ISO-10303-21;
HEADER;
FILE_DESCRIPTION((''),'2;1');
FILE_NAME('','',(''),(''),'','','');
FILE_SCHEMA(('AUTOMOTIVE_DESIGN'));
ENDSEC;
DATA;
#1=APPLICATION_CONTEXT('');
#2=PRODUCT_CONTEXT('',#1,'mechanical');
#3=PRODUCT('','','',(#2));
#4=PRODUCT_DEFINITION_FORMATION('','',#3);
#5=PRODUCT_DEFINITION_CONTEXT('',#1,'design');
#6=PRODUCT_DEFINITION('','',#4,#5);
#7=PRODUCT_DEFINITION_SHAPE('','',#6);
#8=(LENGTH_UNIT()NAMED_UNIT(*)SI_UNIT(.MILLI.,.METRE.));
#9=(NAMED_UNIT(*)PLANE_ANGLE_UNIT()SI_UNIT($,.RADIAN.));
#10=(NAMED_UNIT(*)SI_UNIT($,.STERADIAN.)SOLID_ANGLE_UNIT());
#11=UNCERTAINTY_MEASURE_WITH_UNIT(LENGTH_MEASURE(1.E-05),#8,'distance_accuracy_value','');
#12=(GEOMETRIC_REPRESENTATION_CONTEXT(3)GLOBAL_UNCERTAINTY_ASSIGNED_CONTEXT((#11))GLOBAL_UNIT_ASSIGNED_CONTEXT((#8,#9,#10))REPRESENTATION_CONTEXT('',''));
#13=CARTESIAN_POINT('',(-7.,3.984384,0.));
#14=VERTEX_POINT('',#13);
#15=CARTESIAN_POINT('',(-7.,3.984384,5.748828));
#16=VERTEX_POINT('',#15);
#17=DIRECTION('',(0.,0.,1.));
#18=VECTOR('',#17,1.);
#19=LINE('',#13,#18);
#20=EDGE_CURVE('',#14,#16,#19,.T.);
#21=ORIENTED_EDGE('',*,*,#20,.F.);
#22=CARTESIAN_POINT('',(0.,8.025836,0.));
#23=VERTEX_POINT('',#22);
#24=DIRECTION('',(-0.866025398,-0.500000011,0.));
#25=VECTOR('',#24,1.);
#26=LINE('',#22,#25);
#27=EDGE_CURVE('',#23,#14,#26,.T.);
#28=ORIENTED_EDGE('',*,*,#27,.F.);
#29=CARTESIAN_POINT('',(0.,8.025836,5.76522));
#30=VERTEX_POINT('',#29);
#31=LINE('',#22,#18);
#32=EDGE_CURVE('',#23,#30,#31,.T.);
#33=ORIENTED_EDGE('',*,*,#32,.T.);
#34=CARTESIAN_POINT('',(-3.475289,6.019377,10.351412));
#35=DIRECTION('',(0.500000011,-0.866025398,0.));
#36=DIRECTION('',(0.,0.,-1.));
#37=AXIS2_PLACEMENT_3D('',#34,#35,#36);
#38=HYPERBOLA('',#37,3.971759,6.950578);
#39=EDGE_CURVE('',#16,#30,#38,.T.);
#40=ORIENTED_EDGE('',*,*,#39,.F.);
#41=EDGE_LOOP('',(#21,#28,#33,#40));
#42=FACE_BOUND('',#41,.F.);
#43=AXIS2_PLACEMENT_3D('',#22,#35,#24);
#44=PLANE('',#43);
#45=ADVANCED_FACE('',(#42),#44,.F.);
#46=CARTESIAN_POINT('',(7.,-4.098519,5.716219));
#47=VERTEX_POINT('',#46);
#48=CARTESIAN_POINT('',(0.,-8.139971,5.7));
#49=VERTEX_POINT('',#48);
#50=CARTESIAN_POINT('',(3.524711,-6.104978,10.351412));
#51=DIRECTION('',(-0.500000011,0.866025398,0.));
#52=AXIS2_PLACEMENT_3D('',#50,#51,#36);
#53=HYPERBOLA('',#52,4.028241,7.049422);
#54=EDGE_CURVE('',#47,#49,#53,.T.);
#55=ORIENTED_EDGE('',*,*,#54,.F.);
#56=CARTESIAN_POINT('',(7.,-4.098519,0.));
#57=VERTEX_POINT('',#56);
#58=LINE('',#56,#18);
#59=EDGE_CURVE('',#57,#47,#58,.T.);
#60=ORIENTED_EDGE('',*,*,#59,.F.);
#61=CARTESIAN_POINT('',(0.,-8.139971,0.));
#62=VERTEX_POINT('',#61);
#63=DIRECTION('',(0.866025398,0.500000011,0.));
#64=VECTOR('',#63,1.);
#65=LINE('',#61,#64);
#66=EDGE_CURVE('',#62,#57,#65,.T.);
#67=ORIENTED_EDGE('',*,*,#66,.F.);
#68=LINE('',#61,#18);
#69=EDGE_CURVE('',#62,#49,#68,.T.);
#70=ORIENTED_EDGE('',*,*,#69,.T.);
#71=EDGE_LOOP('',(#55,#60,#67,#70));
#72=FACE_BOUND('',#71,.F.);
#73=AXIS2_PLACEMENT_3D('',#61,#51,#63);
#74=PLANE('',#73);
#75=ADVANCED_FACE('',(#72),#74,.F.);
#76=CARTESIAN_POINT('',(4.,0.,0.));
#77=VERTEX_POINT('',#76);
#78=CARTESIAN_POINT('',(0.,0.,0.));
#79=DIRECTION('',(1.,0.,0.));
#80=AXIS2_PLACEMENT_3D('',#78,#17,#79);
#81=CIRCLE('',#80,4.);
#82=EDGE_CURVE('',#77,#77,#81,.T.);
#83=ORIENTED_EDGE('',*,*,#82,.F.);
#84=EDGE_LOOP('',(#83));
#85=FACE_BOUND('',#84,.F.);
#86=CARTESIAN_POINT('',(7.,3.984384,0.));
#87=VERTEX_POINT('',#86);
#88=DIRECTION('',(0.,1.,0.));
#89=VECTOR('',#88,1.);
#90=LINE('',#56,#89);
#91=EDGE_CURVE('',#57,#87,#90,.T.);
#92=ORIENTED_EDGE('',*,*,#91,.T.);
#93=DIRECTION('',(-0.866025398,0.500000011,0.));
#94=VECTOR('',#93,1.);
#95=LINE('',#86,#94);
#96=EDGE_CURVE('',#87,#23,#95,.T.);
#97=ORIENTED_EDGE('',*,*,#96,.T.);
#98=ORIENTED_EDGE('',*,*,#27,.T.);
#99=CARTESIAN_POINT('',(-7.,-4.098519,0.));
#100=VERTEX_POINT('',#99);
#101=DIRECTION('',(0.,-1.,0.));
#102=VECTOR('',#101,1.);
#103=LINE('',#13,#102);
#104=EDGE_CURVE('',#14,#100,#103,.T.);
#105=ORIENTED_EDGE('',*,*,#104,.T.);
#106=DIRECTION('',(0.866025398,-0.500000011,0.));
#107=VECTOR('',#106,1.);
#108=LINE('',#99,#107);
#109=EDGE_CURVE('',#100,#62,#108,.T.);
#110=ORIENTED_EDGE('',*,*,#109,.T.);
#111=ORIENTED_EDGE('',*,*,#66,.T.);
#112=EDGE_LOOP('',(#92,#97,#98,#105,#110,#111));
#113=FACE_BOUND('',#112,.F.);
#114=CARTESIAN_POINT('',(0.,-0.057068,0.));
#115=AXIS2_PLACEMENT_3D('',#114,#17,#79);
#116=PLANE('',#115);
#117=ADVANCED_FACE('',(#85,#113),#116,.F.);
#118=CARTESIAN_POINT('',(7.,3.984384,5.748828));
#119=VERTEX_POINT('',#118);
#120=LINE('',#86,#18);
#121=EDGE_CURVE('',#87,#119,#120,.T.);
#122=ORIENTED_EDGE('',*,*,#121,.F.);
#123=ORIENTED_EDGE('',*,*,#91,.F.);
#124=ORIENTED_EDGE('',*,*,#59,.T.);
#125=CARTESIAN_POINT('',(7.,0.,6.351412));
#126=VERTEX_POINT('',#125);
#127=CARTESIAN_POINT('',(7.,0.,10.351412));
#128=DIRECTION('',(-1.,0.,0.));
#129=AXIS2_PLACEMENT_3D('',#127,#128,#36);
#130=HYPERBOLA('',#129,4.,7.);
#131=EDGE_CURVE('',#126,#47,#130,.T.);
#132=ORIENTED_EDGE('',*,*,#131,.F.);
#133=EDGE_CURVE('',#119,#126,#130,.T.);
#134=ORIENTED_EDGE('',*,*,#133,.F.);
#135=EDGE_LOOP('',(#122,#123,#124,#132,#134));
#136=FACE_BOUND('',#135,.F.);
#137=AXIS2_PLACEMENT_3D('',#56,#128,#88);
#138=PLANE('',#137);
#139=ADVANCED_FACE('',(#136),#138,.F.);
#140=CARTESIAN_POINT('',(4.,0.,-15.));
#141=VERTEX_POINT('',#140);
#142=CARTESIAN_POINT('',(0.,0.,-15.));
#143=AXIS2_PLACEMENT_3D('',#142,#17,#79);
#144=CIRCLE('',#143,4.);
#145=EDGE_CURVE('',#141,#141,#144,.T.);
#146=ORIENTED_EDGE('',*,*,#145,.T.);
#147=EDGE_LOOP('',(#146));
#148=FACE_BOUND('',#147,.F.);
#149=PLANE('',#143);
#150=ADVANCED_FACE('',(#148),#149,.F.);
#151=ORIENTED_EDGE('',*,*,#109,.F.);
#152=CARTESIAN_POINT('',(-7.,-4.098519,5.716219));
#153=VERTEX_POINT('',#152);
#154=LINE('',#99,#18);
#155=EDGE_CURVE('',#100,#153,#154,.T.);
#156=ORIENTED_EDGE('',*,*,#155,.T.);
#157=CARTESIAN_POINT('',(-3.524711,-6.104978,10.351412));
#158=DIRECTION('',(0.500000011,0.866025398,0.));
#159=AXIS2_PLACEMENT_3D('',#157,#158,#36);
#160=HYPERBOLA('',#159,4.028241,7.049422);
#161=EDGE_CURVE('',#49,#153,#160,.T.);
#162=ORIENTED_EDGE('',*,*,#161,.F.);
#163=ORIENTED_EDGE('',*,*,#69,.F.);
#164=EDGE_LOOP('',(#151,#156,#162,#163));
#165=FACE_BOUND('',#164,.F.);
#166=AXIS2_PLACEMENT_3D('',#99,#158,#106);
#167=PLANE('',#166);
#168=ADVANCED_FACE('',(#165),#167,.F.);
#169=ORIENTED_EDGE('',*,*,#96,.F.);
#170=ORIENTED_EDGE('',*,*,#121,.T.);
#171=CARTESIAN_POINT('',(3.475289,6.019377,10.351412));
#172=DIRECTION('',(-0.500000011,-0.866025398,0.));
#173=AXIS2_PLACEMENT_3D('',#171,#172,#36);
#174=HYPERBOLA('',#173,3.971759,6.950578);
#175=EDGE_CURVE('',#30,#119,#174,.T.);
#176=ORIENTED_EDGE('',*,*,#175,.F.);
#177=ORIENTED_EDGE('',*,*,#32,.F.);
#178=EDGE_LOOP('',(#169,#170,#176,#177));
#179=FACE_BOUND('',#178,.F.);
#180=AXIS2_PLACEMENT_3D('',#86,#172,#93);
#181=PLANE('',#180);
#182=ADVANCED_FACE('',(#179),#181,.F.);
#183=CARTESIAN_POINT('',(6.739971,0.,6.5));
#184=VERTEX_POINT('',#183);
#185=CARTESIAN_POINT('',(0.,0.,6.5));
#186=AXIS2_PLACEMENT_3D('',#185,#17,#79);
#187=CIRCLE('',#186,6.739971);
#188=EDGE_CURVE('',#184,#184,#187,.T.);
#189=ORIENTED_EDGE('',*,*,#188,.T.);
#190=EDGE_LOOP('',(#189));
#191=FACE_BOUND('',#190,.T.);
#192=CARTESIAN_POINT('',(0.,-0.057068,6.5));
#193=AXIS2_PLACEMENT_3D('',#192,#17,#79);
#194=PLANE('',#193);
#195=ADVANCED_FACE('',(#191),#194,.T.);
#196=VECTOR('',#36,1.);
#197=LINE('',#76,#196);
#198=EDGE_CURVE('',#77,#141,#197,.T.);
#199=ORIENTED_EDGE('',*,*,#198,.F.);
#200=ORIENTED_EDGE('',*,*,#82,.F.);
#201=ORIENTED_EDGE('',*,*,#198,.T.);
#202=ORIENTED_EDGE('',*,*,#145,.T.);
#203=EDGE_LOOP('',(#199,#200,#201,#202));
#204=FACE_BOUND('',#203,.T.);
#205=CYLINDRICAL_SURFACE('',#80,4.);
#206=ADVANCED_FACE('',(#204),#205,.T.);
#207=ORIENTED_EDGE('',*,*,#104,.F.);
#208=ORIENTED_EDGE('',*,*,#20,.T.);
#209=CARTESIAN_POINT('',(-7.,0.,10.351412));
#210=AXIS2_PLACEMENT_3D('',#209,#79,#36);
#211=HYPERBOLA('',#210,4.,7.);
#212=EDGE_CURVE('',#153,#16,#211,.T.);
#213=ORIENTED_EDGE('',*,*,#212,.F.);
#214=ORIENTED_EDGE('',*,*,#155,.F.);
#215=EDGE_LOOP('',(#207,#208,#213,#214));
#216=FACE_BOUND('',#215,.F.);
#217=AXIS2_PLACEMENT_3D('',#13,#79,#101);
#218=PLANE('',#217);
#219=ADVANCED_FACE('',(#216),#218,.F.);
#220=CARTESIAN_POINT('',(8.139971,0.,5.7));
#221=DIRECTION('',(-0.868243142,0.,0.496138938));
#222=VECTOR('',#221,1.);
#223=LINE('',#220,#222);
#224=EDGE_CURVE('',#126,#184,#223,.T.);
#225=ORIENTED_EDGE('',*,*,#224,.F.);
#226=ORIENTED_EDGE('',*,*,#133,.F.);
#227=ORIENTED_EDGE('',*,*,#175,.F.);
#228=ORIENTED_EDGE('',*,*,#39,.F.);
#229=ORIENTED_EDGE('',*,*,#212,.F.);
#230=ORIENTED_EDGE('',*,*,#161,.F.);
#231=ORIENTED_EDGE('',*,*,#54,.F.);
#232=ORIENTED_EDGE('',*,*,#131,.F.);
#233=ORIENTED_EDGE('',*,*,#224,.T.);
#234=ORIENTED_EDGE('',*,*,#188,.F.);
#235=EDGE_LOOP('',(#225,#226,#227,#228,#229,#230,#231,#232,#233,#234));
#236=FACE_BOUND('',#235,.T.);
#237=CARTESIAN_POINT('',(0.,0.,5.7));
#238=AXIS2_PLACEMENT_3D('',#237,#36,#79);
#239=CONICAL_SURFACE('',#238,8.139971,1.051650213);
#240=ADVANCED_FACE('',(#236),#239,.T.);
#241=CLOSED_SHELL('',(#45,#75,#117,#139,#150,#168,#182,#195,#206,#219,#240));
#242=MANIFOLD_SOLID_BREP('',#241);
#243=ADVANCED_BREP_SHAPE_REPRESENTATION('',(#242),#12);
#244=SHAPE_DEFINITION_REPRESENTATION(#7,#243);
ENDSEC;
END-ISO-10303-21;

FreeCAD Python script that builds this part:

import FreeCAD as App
import Part
import Sketcher
from FreeCAD import Vector
Q = App.Units.Quantity


def add_polygon(sketch, points):
    """Adds a closed chain of lines whose ends are joined by coincident constraints."""
    first, n = sketch.GeometryCount, len(points)
    for a, b in zip(points, points[1:] + points[:1]):
        sketch.addGeometry(Part.LineSegment(App.Vector(*a, 0), App.Vector(*b, 0)), False)
    for i in range(n):
        sketch.addConstraint(Sketcher.Constraint("Coincident", first + i, 2, first + (i + 1) % n, 1))

doc = App.newDocument("Part")
body = doc.addObject("PartDesign::Body", "Body")

# Sketch on XY plane
sketch1 = body.newObject("Sketcher::SketchObject", "Sketch")
sketch1.AttachmentSupport = (doc.getObject("XY_Plane"), [""])
sketch1.MapMode = "FlatFace"
sketch1.addGeometry(Part.Circle(Vector(0, 0, 0), Vector(0, 0, 1), 4), False)
sketch1.addConstraint([
    Sketcher.Constraint("Coincident", 0, 3, -1, 1),
    Sketcher.Constraint("Diameter", 0, Q("8 mm")),
])
pad1 = body.newObject("PartDesign::Pad", "Pad")
pad1.Profile = sketch1
pad1.Length = 15
pad1.Reversed = True

# Sketch on XY plane
sketch2 = body.newObject("Sketcher::SketchObject", "Sketch001")
sketch2.AttachmentSupport = (doc.getObject("XY_Plane"), [""])
sketch2.MapMode = "FlatFace"
add_polygon(sketch2, [(7, 4), (0, 8), (-7, 4), (-7, -4), (0, -8), (7, -4)])  # lines 0-5
sketch2.addConstraint([
    Sketcher.Constraint("Vertical", 2),
    Sketcher.Constraint("Vertical", 5),
    Sketcher.Constraint("Symmetric", 2, 2, 4, 2, -2),
    Sketcher.Constraint("PointOnObject", 0, 2, -2),
    Sketcher.Constraint("PointOnObject", 3, 2, -2),
    Sketcher.Constraint("Parallel", 0, 3),
    Sketcher.Constraint("Parallel", 1, 4),
    Sketcher.Constraint("Angle", 0, Q("149.999999 deg")),
    Sketcher.Constraint("DistanceX", 1, 2, -1, 1, Q("7 mm")),
    Sketcher.Constraint("DistanceY", 2, 2, 2, 1, Q("8.082903 mm")),
    Sketcher.Constraint("DistanceY", 2, 2, -1, 1, Q("4.098519 mm")),
])
pad2 = body.newObject("PartDesign::Pad", "Pad001")
pad2.Profile = sketch2
pad2.Length = 6.5

# Sketch on YZ plane
sketch3 = body.newObject("Sketcher::SketchObject", "Sketch002")
sketch3.AttachmentSupport = (doc.getObject("YZ_Plane"), [""])
sketch3.MapMode = "FlatFace"
add_polygon(sketch3, [(-8.1, 5.7), (-6.7, 6.5), (-8.1, 6.5)])  # lines 0-2
sketch3.addConstraint([
    Sketcher.Constraint("Horizontal", 1),
    Sketcher.Constraint("Vertical", 2),
    Sketcher.Constraint("DistanceX", 1, 2, 1, 1, Q("1.4 mm")),
    Sketcher.Constraint("DistanceY", 2, 2, 2, 1, Q("0.8 mm")),
    Sketcher.Constraint("DistanceY", -1, 1, 0, 2, Q("6.5 mm")),
    Sketcher.Constraint("DistanceX", 0, 2, -1, 1, Q("6.739971 mm")),
])

# Sketch on XY plane
sketch4 = body.newObject("Sketcher::SketchObject", "Sketch003")
sketch4.AttachmentSupport = (doc.getObject("XY_Plane"), [""])
sketch4.MapMode = "FlatFace"
sketch4.AttachmentOffset = App.Placement(Vector(0, 0, 6.5), App.Rotation())
sketch4.addGeometry(Part.Circle(Vector(0, 0, 0), Vector(0, 0, 1), 8), False)
sketch4.addConstraint([
    Sketcher.Constraint("Coincident", 0, 3, -1, 1),
    Sketcher.Constraint("Diameter", 0, Q("16.279942 mm")),
])
doc.recompute()

subtractivepipe = body.newObject("PartDesign::SubtractivePipe", "SubtractivePipe")
subtractivepipe.Profile = sketch3
subtractivepipe.Spine = (sketch4, ["Edge1"])

doc.recompute()
